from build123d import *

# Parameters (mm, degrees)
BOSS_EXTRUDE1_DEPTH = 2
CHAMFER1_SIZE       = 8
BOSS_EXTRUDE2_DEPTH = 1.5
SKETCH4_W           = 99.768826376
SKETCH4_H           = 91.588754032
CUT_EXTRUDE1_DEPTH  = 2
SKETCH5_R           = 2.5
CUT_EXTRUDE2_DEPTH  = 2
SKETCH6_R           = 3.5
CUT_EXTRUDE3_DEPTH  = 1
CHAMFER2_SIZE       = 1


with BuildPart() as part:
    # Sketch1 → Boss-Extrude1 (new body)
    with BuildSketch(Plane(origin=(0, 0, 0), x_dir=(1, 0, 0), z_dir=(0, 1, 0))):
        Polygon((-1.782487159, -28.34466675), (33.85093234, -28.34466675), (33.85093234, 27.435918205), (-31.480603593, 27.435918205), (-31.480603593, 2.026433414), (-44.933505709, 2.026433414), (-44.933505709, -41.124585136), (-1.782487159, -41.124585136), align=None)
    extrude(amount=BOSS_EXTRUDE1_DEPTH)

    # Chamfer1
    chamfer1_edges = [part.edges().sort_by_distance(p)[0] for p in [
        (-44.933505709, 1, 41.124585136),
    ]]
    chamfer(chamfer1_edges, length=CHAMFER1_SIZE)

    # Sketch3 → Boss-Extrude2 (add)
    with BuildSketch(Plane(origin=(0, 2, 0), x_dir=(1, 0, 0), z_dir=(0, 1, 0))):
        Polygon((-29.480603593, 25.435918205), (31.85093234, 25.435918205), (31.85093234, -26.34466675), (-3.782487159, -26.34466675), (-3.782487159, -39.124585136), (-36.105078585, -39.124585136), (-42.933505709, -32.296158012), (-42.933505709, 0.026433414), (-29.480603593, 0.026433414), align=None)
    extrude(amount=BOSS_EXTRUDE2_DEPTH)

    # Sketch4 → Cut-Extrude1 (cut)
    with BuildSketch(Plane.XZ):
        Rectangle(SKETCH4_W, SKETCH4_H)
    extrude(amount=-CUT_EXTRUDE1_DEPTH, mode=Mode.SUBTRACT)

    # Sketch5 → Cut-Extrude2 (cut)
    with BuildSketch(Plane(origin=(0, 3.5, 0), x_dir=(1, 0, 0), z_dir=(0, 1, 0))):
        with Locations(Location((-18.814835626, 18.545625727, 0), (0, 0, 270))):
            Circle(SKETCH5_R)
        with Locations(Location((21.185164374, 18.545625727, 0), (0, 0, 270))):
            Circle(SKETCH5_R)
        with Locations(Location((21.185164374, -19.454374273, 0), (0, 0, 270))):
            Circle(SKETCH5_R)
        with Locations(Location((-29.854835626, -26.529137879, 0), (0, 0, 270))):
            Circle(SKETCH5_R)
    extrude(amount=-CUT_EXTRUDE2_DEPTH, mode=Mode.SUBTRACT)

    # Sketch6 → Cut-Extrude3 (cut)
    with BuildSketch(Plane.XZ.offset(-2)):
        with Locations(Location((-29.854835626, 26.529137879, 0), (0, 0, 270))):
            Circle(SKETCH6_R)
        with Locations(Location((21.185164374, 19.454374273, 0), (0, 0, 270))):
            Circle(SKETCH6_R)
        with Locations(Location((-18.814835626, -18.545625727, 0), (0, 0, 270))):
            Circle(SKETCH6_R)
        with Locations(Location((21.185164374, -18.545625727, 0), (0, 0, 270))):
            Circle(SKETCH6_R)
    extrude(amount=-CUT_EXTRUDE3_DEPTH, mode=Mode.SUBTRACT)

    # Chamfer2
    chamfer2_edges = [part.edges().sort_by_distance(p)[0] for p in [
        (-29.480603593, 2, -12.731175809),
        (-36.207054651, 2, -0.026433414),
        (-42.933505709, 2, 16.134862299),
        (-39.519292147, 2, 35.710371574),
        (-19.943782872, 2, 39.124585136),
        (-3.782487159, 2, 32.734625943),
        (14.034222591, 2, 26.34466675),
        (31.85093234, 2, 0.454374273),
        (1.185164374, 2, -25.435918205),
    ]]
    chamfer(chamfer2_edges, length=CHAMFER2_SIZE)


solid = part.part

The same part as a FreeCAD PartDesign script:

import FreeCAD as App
import Part
import Sketcher
Q = App.Units.Quantity


def edges_at(feature, points):
    """Names of the edges that pass closest to the given points."""
    edges = feature.Shape.Edges
    near = lambda p: min(range(len(edges)), key=lambda i: edges[i].distToShape(Part.Vertex(*p))[0])
    return sorted({f"Edge{near(p) + 1}" for p in points})

doc = App.newDocument("Part")
body = doc.addObject("PartDesign::Body", "Body")

sketch1 = doc.addObject("Sketcher::SketchObject", "Sketch")
body.addObject(sketch1)
sketch1.AttachmentSupport = (doc.XZ_Plane, [""])
sketch1.MapMode = "FlatFace"
sketch1.addGeometry([
    Part.LineSegment(App.Vector(-1.782487, 28.344667, 0), App.Vector(33.850932, 28.344667, 0)),
    Part.LineSegment(App.Vector(33.850932, 28.344667, 0), App.Vector(33.850932, -27.435918, 0)),
    Part.LineSegment(App.Vector(33.850932, -27.435918, 0), App.Vector(-31.480604, -27.435918, 0)),
    Part.LineSegment(App.Vector(-31.480604, -27.435918, 0), App.Vector(-31.480604, -2.026433, 0)),
    Part.LineSegment(App.Vector(-31.480604, -2.026433, 0), App.Vector(-44.933506, -2.026433, 0)),
    Part.LineSegment(App.Vector(-44.933506, -2.026433, 0), App.Vector(-44.933506, 41.124585, 0)),
    Part.LineSegment(App.Vector(-44.933506, 41.124585, 0), App.Vector(-1.782487, 41.124585, 0)),
    Part.LineSegment(App.Vector(-1.782487, 41.124585, 0), App.Vector(-1.782487, 28.344667, 0)),
], False)
sketch1.addConstraint([
    Sketcher.Constraint("Coincident", 0, 2, 1, 1),
    Sketcher.Constraint("Coincident", 1, 2, 2, 1),
    Sketcher.Constraint("Coincident", 2, 2, 3, 1),
    Sketcher.Constraint("Coincident", 3, 2, 4, 1),
    Sketcher.Constraint("Coincident", 4, 2, 5, 1),
    Sketcher.Constraint("Coincident", 5, 2, 6, 1),
    Sketcher.Constraint("Coincident", 6, 2, 7, 1),
    Sketcher.Constraint("Coincident", 7, 2, 0, 1),
    Sketcher.Constraint("Horizontal", 0),
    Sketcher.Constraint("Vertical", 1),
    Sketcher.Constraint("Horizontal", 2),
    Sketcher.Constraint("Vertical", 3),
    Sketcher.Constraint("Horizontal", 4),
    Sketcher.Constraint("Vertical", 5),
    Sketcher.Constraint("Horizontal", 6),
    Sketcher.Constraint("Vertical", 7),
    Sketcher.Constraint("Equal", 6, 5),
    Sketcher.Constraint("DistanceX", 0, 1, 0, 2, Q("35.633419 mm")),
    Sketcher.Constraint("DistanceX", 6, 1, 6, 2, Q("43.151019 mm")),
    Sketcher.Constraint("DistanceY", 7, 2, 7, 1, Q("12.779918 mm")),
    Sketcher.Constraint("DistanceX", 2, 2, 2, 1, Q("65.331536 mm")),
    Sketcher.Constraint("DistanceY", 1, 2, 1, 1, Q("55.780585 mm")),
    Sketcher.Constraint("DistanceY", 1, 2, -1, 1, Q("27.435918 mm")),
    Sketcher.Constraint("DistanceX", -1, 1, 0, 2, Q("33.850932 mm")),
])
pad1 = doc.addObject("PartDesign::Pad", "Pad")
body.addObject(pad1)
pad1.Profile = sketch1
pad1.Length = 2
pad1.Reversed = True
doc.recompute()

chamfer = doc.addObject("PartDesign::Chamfer", "Chamfer")
body.addObject(chamfer)
chamfer.Base = (pad1, edges_at(pad1, [(-44.934, 1, 41.125)]))
chamfer.Size = 8

sketch2 = doc.addObject("Sketcher::SketchObject", "Sketch001")
body.addObject(sketch2)
sketch2.AttachmentSupport = (doc.XZ_Plane, [""])
sketch2.MapMode = "FlatFace"
sketch2.AttachmentOffset = App.Placement(App.Vector(0, 0, -2), App.Rotation())
sketch2.addGeometry([
    Part.LineSegment(App.Vector(31.850932, -25.435918, 0), App.Vector(-29.480604, -25.435918, 0)),
    Part.LineSegment(App.Vector(-29.480604, -25.435918, 0), App.Vector(-29.480604, -0.026433, 0)),
    Part.LineSegment(App.Vector(-29.480604, -0.026433, 0), App.Vector(-42.933506, -0.026433, 0)),
    Part.LineSegment(App.Vector(-42.933506, -0.026433, 0), App.Vector(-42.933506, 32.296158, 0)),
    Part.LineSegment(App.Vector(-42.933506, 32.296158, 0), App.Vector(-36.105079, 39.124585, 0)),
    Part.LineSegment(App.Vector(-36.105079, 39.124585, 0), App.Vector(-3.782487, 39.124585, 0)),
    Part.LineSegment(App.Vector(-3.782487, 39.124585, 0), App.Vector(-3.782487, 26.344667, 0)),
    Part.LineSegment(App.Vector(-3.782487, 26.344667, 0), App.Vector(31.850932, 26.344667, 0)),
    Part.LineSegment(App.Vector(31.850932, 26.344667, 0), App.Vector(31.850932, -25.435918, 0)),
], False)
sketch2.addConstraint([
    Sketcher.Constraint("Coincident", 0, 2, 1, 1),
    Sketcher.Constraint("Coincident", 1, 2, 2, 1),
    Sketcher.Constraint("Coincident", 2, 2, 3, 1),
    Sketcher.Constraint("Coincident", 3, 2, 4, 1),
    Sketcher.Constraint("Coincident", 4, 2, 5, 1),
    Sketcher.Constraint("Coincident", 5, 2, 6, 1),
    Sketcher.Constraint("Coincident", 6, 2, 7, 1),
    Sketcher.Constraint("Coincident", 7, 2, 8, 1),
    Sketcher.Constraint("Coincident", 8, 2, 0, 1),
    Sketcher.Constraint("Horizontal", 0),
    Sketcher.Constraint("Vertical", 1),
    Sketcher.Constraint("Horizontal", 2),
    Sketcher.Constraint("Vertical", 3),
    Sketcher.Constraint("Horizontal", 5),
    Sketcher.Constraint("Vertical", 6),
    Sketcher.Constraint("Horizontal", 7),
    Sketcher.Constraint("Vertical", 8),
    Sketcher.Constraint("Equal", 5, 3),
    Sketcher.Constraint("Angle", 4, Q("45 deg")),
    Sketcher.Constraint("DistanceX", 5, 1, 5, 2, Q("32.322591 mm")),
    Sketcher.Constraint("DistanceX", 7, 1, 7, 2, Q("35.633419 mm")),
    Sketcher.Constraint("DistanceY", 6, 2, 6, 1, Q("12.779918 mm")),
    Sketcher.Constraint("DistanceY", 1, 2, 6, 2, Q("26.3711 mm")),
    Sketcher.Constraint("DistanceX", 0, 2, 0, 1, Q("61.331536 mm")),
    Sketcher.Constraint("DistanceY", 1, 1, 1, 2, Q("25.409485 mm")),
    Sketcher.Constraint("DistanceY", 0, 2, -1, 1, Q("25.435918 mm")),
    Sketcher.Constraint("DistanceX", 4, 2, -1, 1, Q("36.105079 mm")),
])
pad2 = doc.addObject("PartDesign::Pad", "Pad001")
body.addObject(pad2)
pad2.Profile = sketch2
pad2.Length = 1.5
pad2.Reversed = True

sketch3 = doc.addObject("Sketcher::SketchObject", "Sketch002")
body.addObject(sketch3)
sketch3.AttachmentSupport = (doc.XZ_Plane, [""])
sketch3.MapMode = "FlatFace"
sketch3.addGeometry([
    Part.LineSegment(App.Vector(-49.884413, 45.794377, 0), App.Vector(-49.884413, -45.794377, 0)),
    Part.LineSegment(App.Vector(-49.884413, -45.794377, 0), App.Vector(49.884413, -45.794377, 0)),
    Part.LineSegment(App.Vector(49.884413, -45.794377, 0), App.Vector(49.884413, 45.794377, 0)),
    Part.LineSegment(App.Vector(49.884413, 45.794377, 0), App.Vector(-49.884413, 45.794377, 0)),
], False)
sketch3.addConstraint([
    Sketcher.Constraint("Coincident", 0, 2, 1, 1),
    Sketcher.Constraint("Coincident", 1, 2, 2, 1),
    Sketcher.Constraint("Coincident", 2, 2, 3, 1),
    Sketcher.Constraint("Coincident", 3, 2, 0, 1),
    Sketcher.Constraint("Vertical", 0),
    Sketcher.Constraint("Horizontal", 1),
    Sketcher.Constraint("Vertical", 2),
    Sketcher.Constraint("Horizontal", 3),
    Sketcher.Constraint("Symmetric", 0, 2, 2, 2, -1, 1),
    Sketcher.Constraint("DistanceX", 1, 1, 1, 2, Q("99.768826 mm")),
    Sketcher.Constraint("DistanceY", 0, 2, 0, 1, Q("91.588754 mm")),
])
pocket1 = doc.addObject("PartDesign::Pocket", "Pocket")
body.addObject(pocket1)
pocket1.Profile = sketch3
pocket1.Length = 2

sketch4 = doc.addObject("Sketcher::SketchObject", "Sketch003")
body.addObject(sketch4)
sketch4.AttachmentSupport = (doc.XZ_Plane, [""])
sketch4.MapMode = "FlatFace"
sketch4.AttachmentOffset = App.Placement(App.Vector(0, 0, -3.5), App.Rotation())
sketch4.addGeometry([
    Part.Circle(App.Vector(-18.814836, -18.545626, 0), App.Vector(0, 0, 1), 2.5),
    Part.Circle(App.Vector(21.185164, -18.545626, 0), App.Vector(0, 0, 1), 2.5),
    Part.Circle(App.Vector(21.185164, 19.454374, 0), App.Vector(0, 0, 1), 2.5),
    Part.Circle(App.Vector(-29.854836, 26.529138, 0), App.Vector(0, 0, 1), 2.5),
], False)
sketch4.addConstraint([
    Sketcher.Constraint("Equal", 0, 1),
    Sketcher.Constraint("Equal", 1, 2),
    Sketcher.Constraint("Equal", 2, 3),
    Sketcher.Constraint("Horizontal", 0, 3, 1, 3),
    Sketcher.Constraint("Vertical", 1, 3, 2, 3),
    Sketcher.Constraint("Diameter", 0, Q("5 mm")),
    Sketcher.Constraint("DistanceX", 0, 3, 1, 3, Q("40 mm")),
    Sketcher.Constraint("DistanceY", 1, 3, 2, 3, Q("38 mm")),
    Sketcher.Constraint("DistanceX", 3, 3, 0, 3, Q("11.04 mm")),
    Sketcher.Constraint("DistanceX", 0, 3, -1, 1, Q("18.814836 mm")),
    Sketcher.Constraint("DistanceY", 0, 3, -1, 1, Q("18.545626 mm")),
    Sketcher.Constraint("DistanceY", -1, 1, 3, 3, Q("26.529138 mm")),
])
pocket2 = doc.addObject("PartDesign::Pocket", "Pocket001")
body.addObject(pocket2)
pocket2.Profile = sketch4
pocket2.Length = 2
pocket2.Reversed = True

sketch5 = doc.addObject("Sketcher::SketchObject", "Sketch004")
body.addObject(sketch5)
sketch5.AttachmentSupport = (doc.XZ_Plane, [""])
sketch5.MapMode = "FlatFace"
sketch5.AttachmentOffset = App.Placement(App.Vector(0, 0, -2), App.Rotation())
sketch5.addGeometry([
    Part.Circle(App.Vector(-29.854836, 26.529138, 0), App.Vector(0, 0, 1), 3.5),
    Part.Circle(App.Vector(21.185164, 19.454374, 0), App.Vector(0, 0, 1), 3.5),
    Part.Circle(App.Vector(-18.814836, -18.545626, 0), App.Vector(0, 0, 1), 3.5),
    Part.Circle(App.Vector(21.185164, -18.545626, 0), App.Vector(0, 0, 1), 3.5),
], False)
sketch5.addConstraint([
    Sketcher.Constraint("Equal", 0, 1),
    Sketcher.Constraint("Equal", 1, 2),
    Sketcher.Constraint("Equal", 2, 3),
    Sketcher.Constraint("Horizontal", 2, 3, 3, 3),
    Sketcher.Constraint("Vertical", 1, 3, 3, 3),
    Sketcher.Constraint("Diameter", 0, Q("7 mm")),
    Sketcher.Constraint("DistanceX", 2, 3, 1, 3, Q("40 mm")),
    Sketcher.Constraint("DistanceY", 2, 3, 1, 3, Q("38 mm")),
    Sketcher.Constraint("DistanceX", 0, 3, 1, 3, Q("51.04 mm")),
    Sketcher.Constraint("DistanceX", 0, 3, -1, 1, Q("29.854836 mm")),
    Sketcher.Constraint("DistanceY", -1, 1, 0, 3, Q("26.529138 mm")),
    Sketcher.Constraint("DistanceY", -1, 1, 1, 3, Q("19.454374 mm")),
])
pocket3 = doc.addObject("PartDesign::Pocket", "Pocket002")
body.addObject(pocket3)
pocket3.Profile = sketch5
pocket3.Length = 1
doc.recompute()

chamfer2 = doc.addObject("PartDesign::Chamfer", "Chamfer001")
body.addObject(chamfer2)
chamfer2.Base = (pocket3, edges_at(pocket3, [
    (-29.481, 2, -12.731),
    (-36.207, 2, -0.026),
    (-42.934, 2, 16.135),
    (-39.519, 2, 35.71),
    (-19.944, 2, 39.125),
    (-3.782, 2, 32.735),
    (14.034, 2, 26.345),
    (31.851, 2, 0.454),
    (1.185, 2, -25.436),
]))
chamfer2.Size = 1

doc.recompute()
